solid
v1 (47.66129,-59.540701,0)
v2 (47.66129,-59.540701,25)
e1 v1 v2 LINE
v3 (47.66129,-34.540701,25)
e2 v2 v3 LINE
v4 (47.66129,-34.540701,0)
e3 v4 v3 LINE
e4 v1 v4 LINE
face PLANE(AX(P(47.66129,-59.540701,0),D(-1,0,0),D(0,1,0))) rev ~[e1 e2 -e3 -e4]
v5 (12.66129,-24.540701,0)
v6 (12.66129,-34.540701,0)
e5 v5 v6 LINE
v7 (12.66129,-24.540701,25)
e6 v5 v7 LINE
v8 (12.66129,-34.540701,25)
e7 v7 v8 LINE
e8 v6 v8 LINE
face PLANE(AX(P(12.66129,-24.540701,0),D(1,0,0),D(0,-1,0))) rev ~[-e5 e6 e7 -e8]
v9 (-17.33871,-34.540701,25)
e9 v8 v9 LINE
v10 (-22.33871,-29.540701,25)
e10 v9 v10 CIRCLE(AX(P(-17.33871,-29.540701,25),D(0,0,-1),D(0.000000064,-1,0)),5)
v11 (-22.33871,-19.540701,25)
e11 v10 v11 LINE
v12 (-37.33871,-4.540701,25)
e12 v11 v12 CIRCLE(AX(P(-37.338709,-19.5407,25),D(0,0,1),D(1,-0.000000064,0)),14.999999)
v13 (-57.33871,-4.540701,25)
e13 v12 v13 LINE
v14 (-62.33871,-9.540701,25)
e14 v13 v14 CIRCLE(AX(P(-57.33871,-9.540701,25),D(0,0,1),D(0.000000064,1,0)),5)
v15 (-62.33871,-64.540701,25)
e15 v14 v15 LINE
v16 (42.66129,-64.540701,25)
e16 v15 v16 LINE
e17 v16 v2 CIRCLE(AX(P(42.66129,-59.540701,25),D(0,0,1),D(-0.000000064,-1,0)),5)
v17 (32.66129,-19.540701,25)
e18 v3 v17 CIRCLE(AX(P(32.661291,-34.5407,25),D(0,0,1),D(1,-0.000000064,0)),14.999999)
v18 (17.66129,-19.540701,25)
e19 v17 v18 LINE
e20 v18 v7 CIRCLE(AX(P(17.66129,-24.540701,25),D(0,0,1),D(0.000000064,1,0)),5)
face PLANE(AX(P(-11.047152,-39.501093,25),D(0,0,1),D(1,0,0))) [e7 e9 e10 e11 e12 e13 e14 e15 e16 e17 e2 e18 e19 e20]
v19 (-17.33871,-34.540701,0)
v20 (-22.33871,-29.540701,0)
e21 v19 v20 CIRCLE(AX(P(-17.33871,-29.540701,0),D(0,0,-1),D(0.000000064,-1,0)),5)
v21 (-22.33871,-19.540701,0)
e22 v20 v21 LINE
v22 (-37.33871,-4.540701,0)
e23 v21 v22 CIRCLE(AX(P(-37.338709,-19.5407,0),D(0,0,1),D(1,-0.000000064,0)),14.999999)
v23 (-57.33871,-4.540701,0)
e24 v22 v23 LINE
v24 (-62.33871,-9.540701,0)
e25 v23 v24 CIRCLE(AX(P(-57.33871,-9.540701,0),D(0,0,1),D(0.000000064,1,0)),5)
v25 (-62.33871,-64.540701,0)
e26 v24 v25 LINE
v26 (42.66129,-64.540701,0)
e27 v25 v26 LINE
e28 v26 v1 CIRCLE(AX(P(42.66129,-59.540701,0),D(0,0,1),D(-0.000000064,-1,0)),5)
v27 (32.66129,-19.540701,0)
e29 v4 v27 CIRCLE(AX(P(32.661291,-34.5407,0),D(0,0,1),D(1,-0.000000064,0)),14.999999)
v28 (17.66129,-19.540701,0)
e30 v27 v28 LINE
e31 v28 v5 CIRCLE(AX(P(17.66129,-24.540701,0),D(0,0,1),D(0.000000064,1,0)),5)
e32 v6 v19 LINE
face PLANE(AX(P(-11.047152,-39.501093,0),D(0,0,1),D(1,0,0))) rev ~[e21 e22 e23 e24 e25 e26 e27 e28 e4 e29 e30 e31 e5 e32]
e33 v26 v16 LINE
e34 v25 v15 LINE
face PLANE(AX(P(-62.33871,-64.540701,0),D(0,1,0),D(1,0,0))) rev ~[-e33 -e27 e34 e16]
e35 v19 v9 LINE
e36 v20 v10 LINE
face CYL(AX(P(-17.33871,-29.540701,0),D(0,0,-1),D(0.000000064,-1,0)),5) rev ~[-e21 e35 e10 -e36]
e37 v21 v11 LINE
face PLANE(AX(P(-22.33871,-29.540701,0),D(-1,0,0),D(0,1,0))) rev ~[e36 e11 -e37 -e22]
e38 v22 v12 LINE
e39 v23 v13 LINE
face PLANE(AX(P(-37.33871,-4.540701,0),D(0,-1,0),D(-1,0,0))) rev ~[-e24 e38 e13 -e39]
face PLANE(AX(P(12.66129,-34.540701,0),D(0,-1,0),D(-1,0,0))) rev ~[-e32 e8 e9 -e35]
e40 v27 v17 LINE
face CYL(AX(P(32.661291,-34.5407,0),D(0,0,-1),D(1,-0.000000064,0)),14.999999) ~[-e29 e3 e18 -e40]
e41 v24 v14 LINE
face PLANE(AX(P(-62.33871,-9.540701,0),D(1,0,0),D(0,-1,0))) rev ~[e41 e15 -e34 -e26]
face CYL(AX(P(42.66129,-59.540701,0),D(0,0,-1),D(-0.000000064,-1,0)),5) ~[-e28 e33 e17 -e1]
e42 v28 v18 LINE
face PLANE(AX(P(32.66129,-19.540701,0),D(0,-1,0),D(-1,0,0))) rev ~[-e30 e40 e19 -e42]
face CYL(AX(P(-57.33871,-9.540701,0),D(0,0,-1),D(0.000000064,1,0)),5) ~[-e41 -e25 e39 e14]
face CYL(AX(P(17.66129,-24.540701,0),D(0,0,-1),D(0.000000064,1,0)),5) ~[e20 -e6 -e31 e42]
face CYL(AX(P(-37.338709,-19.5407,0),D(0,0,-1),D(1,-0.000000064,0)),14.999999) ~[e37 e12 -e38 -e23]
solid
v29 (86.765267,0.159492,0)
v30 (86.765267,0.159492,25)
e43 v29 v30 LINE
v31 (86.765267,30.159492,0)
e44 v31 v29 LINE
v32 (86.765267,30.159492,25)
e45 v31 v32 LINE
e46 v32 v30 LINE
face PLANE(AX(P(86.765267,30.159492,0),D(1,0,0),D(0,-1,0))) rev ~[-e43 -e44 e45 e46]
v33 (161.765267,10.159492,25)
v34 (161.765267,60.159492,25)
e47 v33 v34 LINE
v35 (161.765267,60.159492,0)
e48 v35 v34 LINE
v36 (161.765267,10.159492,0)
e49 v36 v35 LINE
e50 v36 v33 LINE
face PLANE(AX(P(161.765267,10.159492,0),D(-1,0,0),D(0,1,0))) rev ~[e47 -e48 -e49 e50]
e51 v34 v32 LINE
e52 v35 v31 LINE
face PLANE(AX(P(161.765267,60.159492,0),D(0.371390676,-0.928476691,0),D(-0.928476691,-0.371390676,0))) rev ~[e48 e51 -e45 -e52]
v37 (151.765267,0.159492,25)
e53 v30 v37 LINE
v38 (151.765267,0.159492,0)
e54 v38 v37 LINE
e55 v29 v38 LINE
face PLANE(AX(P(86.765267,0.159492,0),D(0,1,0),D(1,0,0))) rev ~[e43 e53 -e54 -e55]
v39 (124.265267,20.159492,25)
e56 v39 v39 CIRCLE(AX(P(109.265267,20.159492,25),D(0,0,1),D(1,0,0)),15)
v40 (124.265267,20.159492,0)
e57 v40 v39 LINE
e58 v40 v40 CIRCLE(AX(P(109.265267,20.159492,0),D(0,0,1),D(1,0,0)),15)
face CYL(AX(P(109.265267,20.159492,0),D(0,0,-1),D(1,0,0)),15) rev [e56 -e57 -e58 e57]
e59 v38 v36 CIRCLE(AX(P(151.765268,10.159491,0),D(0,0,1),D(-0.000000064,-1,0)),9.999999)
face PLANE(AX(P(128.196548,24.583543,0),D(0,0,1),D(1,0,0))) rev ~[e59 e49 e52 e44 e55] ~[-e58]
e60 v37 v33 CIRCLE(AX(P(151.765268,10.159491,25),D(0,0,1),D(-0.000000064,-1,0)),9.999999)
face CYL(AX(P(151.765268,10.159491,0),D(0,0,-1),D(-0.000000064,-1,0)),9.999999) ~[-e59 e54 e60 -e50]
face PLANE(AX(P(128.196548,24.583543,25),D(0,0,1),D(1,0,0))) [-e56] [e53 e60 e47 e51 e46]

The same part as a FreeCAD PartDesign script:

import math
import FreeCAD as App
import Part
import Sketcher

V = App.Vector

doc = App.newDocument("Part")
body = doc.addObject("PartDesign::Body", "Body")
body.AllowCompound = True

# Sketch on XY plane
sketch1 = doc.addObject("Sketcher::SketchObject", "Sketch")
body.addObject(sketch1)
sketch1.AttachmentSupport = (doc.XY_Plane, [""])
sketch1.MapMode = "FlatFace"
sketch1.addGeometry([
    Part.LineSegment(V(161.8, 60.2, 0), V(86.8, 30.2, 0)),  # 0
    Part.LineSegment(V(86.8, 30.2, 0), V(86.8, 0.2, 0)),  # 1
    Part.LineSegment(V(86.8, 0.2, 0), V(151.8, 0.2, 0)),  # 2
    Part.ArcOfCircle(Part.Circle(V(151.8, 10.2, 0), V(0, 0, 1), 10), math.radians(-90), math.radians(0)),  # 3
    Part.LineSegment(V(161.8, 10.2, 0), V(161.8, 60.2, 0)),  # 4
    Part.Circle(V(109.3, 20.2, 0), V(0, 0, 1), 15),  # 5
    Part.LineSegment(V(-62.3, -9.5, 0), V(-62.3, -64.5, 0)),  # 6
    Part.LineSegment(V(-62.3, -64.5, 0), V(42.7, -64.5, 0)),  # 7
    Part.ArcOfCircle(Part.Circle(V(42.7, -59.5, 0), V(0, 0, 1), 5), math.radians(-90), math.radians(0)),  # 8
    Part.LineSegment(V(47.7, -59.5, 0), V(47.7, -34.5, 0)),  # 9
    Part.ArcOfCircle(Part.Circle(V(32.7, -34.5, 0), V(0, 0, 1), 15), math.radians(0), math.radians(90)),  # 10
    Part.LineSegment(V(32.7, -19.5, 0), V(17.7, -19.5, 0)),  # 11
    Part.ArcOfCircle(Part.Circle(V(17.7, -24.5, 0), V(0, 0, 1), 5), math.radians(90), math.radians(180)),  # 12
    Part.LineSegment(V(12.7, -24.5, 0), V(12.7, -34.5, 0)),  # 13
    Part.LineSegment(V(12.7, -34.5, 0), V(-17.3, -34.5, 0)),  # 14
    Part.ArcOfCircle(Part.Circle(V(-17.3, -29.5, 0), V(0, 0, 1), 5), math.radians(180), math.radians(270)),  # 15
    Part.LineSegment(V(-22.3, -29.5, 0), V(-22.3, -19.5, 0)),  # 16
    Part.ArcOfCircle(Part.Circle(V(-37.3, -19.5, 0), V(0, 0, 1), 15), math.radians(0), math.radians(90)),  # 17
    Part.LineSegment(V(-37.3, -4.5, 0), V(-57.3, -4.5, 0)),  # 18
    Part.ArcOfCircle(Part.Circle(V(-57.3, -9.5, 0), V(0, 0, 1), 5), math.radians(90), math.radians(180)),  # 19
], False)
sketch1.addConstraint([
    Sketcher.Constraint("Coincident", 0, 2, 1, 1),
    Sketcher.Constraint("Coincident", 1, 2, 2, 1),
    Sketcher.Constraint("Tangent", 2, 2, 3, 1),
    Sketcher.Constraint("Tangent", 3, 2, 4, 1),
    Sketcher.Constraint("Coincident", 4, 2, 0, 1),
    Sketcher.Constraint("Coincident", 6, 2, 7, 1),
    Sketcher.Constraint("Tangent", 7, 2, 8, 1),
    Sketcher.Constraint("Tangent", 8, 2, 9, 1),
    Sketcher.Constraint("Tangent", 9, 2, 10, 1),
    Sketcher.Constraint("Tangent", 10, 2, 11, 1),
    Sketcher.Constraint("Tangent", 11, 2, 12, 1),
    Sketcher.Constraint("Tangent", 12, 2, 13, 1),
    Sketcher.Constraint("Coincident", 13, 2, 14, 1),
    Sketcher.Constraint("Tangent", 14, 2, 15, 2),
    Sketcher.Constraint("Tangent", 15, 1, 16, 1),
    Sketcher.Constraint("Tangent", 16, 2, 17, 1),
    Sketcher.Constraint("Tangent", 17, 2, 18, 1),
    Sketcher.Constraint("Tangent", 18, 2, 19, 1),
    Sketcher.Constraint("Tangent", 19, 2, 6, 1),
    Sketcher.Constraint("Vertical", 1),
    Sketcher.Constraint("Horizontal", 2),
    Sketcher.Constraint("Vertical", 4),
    Sketcher.Constraint("Vertical", 6),
    Sketcher.Constraint("Horizontal", 7),
    Sketcher.Constraint("Vertical", 9),
    Sketcher.Constraint("Horizontal", 11),
    Sketcher.Constraint("Vertical", 13),
    Sketcher.Constraint("Horizontal", 14),
    Sketcher.Constraint("Vertical", 16),
    Sketcher.Constraint("Horizontal", 18),
    Sketcher.Constraint("Equal", 5, 10),
    Sketcher.Constraint("Equal", 8, 12),
    Sketcher.Constraint("Equal", 12, 15),
    Sketcher.Constraint("Equal", 10, 17),
    Sketcher.Constraint("Equal", 15, 19),
    Sketcher.Constraint("Horizontal", 17, 3, 10, 2),
    Sketcher.Constraint("Horizontal", 9, 2, 13, 2),
    Sketcher.Constraint("Equal", 14, 1),
    Sketcher.Constraint("Diameter", 5, 30.0),
    Sketcher.Constraint("Radius", 3, 9.999999),
    Sketcher.Constraint("Radius", 8, 5.0),
    Sketcher.Constraint("DistanceX", 2, 1, 2, 2, 65.0),
    Sketcher.Constraint("DistanceX", 7, 1, 7, 2, 105.0),
    Sketcher.Constraint("DistanceX", 11, 2, 11, 1, 15.0),
    Sketcher.Constraint("DistanceX", 14, 2, 14, 1, 30.0),
    Sketcher.Constraint("DistanceY", 4, 1, 4, 2, 50.0),
    Sketcher.Constraint("DistanceY", 6, 2, 6, 1, 55.0),
    Sketcher.Constraint("DistanceY", 3, 3, 5, 3, 10.000001),
    Sketcher.Constraint("DistanceX", 5, 3, 3, 3, 42.500001),
    Sketcher.Constraint("DistanceY", 8, 3, -1, 1, 59.540701),
    Sketcher.Constraint("DistanceY", -1, 1, 3, 3, 10.159491),
    Sketcher.Constraint("DistanceX", -1, 1, 8, 3, 42.66129),
    Sketcher.Constraint("DistanceX", -1, 1, 3, 3, 151.765268),
])
pad1 = doc.addObject("PartDesign::Pad", "Pad")
body.addObject(pad1)
pad1.Profile = sketch1
pad1.Length = 25

doc.recompute()
